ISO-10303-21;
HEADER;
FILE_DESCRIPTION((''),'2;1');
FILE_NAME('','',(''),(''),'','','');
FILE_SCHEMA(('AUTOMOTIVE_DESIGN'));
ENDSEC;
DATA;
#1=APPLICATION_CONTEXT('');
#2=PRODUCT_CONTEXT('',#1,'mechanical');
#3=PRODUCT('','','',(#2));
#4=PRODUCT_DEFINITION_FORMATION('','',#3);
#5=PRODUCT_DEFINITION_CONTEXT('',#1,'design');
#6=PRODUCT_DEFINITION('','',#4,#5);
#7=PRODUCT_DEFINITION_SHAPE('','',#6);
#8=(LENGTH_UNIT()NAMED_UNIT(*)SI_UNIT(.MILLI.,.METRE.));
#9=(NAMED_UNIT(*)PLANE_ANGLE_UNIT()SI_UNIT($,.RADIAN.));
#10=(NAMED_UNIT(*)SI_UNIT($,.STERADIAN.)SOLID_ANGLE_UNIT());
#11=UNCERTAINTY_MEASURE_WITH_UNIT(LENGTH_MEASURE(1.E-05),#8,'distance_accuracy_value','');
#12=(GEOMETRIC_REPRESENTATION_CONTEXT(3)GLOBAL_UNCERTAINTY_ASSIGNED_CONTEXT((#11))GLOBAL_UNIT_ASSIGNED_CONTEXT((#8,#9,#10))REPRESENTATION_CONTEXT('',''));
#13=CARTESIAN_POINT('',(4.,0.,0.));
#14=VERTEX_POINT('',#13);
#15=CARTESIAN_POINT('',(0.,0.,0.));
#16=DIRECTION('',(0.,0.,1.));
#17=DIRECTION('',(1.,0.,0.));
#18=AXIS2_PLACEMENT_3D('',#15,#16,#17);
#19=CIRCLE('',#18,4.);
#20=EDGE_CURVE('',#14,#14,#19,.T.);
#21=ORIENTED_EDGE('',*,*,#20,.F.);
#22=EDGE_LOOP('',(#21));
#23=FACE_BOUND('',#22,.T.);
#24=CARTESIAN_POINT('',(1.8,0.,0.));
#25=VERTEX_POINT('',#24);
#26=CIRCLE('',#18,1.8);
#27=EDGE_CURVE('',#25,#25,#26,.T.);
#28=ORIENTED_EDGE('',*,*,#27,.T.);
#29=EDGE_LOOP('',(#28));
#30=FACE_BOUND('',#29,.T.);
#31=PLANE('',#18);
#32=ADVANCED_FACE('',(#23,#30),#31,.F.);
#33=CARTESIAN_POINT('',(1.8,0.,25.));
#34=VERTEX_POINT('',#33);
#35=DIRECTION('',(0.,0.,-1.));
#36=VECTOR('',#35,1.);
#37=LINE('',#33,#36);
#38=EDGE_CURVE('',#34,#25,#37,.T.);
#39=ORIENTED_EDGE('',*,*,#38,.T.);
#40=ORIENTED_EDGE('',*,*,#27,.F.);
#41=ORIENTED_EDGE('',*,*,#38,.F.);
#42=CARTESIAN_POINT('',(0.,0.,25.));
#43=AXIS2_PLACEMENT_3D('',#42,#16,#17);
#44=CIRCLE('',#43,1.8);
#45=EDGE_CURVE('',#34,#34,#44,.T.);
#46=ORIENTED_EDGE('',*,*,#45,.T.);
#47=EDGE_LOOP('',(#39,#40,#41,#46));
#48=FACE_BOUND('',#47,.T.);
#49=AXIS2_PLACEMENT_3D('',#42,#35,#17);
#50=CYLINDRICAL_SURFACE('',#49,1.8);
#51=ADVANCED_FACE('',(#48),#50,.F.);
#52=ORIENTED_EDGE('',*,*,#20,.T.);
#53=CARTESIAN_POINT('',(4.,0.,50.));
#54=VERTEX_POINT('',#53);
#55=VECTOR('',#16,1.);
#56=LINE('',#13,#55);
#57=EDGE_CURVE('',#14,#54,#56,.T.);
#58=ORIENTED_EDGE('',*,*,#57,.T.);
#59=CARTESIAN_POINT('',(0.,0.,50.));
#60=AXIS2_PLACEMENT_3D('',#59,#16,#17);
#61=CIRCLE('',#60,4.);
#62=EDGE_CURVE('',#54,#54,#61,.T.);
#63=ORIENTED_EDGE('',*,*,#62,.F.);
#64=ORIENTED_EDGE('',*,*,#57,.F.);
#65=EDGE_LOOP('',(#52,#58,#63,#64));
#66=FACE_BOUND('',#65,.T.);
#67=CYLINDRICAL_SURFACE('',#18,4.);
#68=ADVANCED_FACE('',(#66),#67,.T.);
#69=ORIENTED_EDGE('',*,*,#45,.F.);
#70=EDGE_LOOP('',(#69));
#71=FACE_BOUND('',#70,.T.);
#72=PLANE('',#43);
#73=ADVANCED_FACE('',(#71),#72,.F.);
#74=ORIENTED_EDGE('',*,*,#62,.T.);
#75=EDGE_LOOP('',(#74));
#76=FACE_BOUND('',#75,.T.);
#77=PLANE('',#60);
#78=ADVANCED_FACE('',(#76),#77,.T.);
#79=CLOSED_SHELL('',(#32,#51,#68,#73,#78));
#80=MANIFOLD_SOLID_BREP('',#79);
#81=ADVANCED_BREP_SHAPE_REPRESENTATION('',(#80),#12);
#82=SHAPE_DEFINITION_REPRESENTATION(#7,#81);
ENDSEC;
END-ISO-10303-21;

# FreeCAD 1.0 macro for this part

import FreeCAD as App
import Part
import Sketcher


def add_polygon(sketch, points):
    """Adds a closed chain of lines whose ends are joined by coincident constraints."""
    first, n = sketch.GeometryCount, len(points)
    for a, b in zip(points, points[1:] + points[:1]):
        sketch.addGeometry(Part.LineSegment(App.Vector(*a, 0), App.Vector(*b, 0)), False)
    for i in range(n):
        sketch.addConstraint(Sketcher.Constraint("Coincident", first + i, 2, first + (i + 1) % n, 1))

doc = App.newDocument("Part")
body = doc.addObject("PartDesign::Body", "Body")

# Sketch on XZ plane
sketch1 = body.newObject("Sketcher::SketchObject", "Sketch")
sketch1.AttachmentSupport = (doc.getObject("XZ_Plane"), [""])
sketch1.MapMode = "FlatFace"
add_polygon(sketch1, [(0, 50), (0, 25), (1.8, 25), (1.8, 0), (4, 0), (4, 50)])  # lines 0-5
sketch1.addConstraint([
    Sketcher.Constraint("Vertical", 0),
    Sketcher.Constraint("Horizontal", 1),
    Sketcher.Constraint("Vertical", 2),
    Sketcher.Constraint("Horizontal", 3),
    Sketcher.Constraint("Vertical", 4),
    Sketcher.Constraint("Horizontal", 5),
    Sketcher.Constraint("PointOnObject", 0, 2, -2),
    Sketcher.Constraint("PointOnObject", 2, 2, -1),
    Sketcher.Constraint("Equal", 0, 2),
    Sketcher.Constraint("DistanceX", 5, 2, 5, 1, 4.0),
    Sketcher.Constraint("DistanceY", 0, 2, 0, 1, 25.0),
    Sketcher.Constraint("DistanceX", 1, 1, 1, 2, 1.8),
])
revolution = body.newObject("PartDesign::Revolution", "Revolution")
revolution.Profile = sketch1
revolution.ReferenceAxis = (sketch1, ["V_Axis"])
revolution.Angle = 360

doc.recompute()
